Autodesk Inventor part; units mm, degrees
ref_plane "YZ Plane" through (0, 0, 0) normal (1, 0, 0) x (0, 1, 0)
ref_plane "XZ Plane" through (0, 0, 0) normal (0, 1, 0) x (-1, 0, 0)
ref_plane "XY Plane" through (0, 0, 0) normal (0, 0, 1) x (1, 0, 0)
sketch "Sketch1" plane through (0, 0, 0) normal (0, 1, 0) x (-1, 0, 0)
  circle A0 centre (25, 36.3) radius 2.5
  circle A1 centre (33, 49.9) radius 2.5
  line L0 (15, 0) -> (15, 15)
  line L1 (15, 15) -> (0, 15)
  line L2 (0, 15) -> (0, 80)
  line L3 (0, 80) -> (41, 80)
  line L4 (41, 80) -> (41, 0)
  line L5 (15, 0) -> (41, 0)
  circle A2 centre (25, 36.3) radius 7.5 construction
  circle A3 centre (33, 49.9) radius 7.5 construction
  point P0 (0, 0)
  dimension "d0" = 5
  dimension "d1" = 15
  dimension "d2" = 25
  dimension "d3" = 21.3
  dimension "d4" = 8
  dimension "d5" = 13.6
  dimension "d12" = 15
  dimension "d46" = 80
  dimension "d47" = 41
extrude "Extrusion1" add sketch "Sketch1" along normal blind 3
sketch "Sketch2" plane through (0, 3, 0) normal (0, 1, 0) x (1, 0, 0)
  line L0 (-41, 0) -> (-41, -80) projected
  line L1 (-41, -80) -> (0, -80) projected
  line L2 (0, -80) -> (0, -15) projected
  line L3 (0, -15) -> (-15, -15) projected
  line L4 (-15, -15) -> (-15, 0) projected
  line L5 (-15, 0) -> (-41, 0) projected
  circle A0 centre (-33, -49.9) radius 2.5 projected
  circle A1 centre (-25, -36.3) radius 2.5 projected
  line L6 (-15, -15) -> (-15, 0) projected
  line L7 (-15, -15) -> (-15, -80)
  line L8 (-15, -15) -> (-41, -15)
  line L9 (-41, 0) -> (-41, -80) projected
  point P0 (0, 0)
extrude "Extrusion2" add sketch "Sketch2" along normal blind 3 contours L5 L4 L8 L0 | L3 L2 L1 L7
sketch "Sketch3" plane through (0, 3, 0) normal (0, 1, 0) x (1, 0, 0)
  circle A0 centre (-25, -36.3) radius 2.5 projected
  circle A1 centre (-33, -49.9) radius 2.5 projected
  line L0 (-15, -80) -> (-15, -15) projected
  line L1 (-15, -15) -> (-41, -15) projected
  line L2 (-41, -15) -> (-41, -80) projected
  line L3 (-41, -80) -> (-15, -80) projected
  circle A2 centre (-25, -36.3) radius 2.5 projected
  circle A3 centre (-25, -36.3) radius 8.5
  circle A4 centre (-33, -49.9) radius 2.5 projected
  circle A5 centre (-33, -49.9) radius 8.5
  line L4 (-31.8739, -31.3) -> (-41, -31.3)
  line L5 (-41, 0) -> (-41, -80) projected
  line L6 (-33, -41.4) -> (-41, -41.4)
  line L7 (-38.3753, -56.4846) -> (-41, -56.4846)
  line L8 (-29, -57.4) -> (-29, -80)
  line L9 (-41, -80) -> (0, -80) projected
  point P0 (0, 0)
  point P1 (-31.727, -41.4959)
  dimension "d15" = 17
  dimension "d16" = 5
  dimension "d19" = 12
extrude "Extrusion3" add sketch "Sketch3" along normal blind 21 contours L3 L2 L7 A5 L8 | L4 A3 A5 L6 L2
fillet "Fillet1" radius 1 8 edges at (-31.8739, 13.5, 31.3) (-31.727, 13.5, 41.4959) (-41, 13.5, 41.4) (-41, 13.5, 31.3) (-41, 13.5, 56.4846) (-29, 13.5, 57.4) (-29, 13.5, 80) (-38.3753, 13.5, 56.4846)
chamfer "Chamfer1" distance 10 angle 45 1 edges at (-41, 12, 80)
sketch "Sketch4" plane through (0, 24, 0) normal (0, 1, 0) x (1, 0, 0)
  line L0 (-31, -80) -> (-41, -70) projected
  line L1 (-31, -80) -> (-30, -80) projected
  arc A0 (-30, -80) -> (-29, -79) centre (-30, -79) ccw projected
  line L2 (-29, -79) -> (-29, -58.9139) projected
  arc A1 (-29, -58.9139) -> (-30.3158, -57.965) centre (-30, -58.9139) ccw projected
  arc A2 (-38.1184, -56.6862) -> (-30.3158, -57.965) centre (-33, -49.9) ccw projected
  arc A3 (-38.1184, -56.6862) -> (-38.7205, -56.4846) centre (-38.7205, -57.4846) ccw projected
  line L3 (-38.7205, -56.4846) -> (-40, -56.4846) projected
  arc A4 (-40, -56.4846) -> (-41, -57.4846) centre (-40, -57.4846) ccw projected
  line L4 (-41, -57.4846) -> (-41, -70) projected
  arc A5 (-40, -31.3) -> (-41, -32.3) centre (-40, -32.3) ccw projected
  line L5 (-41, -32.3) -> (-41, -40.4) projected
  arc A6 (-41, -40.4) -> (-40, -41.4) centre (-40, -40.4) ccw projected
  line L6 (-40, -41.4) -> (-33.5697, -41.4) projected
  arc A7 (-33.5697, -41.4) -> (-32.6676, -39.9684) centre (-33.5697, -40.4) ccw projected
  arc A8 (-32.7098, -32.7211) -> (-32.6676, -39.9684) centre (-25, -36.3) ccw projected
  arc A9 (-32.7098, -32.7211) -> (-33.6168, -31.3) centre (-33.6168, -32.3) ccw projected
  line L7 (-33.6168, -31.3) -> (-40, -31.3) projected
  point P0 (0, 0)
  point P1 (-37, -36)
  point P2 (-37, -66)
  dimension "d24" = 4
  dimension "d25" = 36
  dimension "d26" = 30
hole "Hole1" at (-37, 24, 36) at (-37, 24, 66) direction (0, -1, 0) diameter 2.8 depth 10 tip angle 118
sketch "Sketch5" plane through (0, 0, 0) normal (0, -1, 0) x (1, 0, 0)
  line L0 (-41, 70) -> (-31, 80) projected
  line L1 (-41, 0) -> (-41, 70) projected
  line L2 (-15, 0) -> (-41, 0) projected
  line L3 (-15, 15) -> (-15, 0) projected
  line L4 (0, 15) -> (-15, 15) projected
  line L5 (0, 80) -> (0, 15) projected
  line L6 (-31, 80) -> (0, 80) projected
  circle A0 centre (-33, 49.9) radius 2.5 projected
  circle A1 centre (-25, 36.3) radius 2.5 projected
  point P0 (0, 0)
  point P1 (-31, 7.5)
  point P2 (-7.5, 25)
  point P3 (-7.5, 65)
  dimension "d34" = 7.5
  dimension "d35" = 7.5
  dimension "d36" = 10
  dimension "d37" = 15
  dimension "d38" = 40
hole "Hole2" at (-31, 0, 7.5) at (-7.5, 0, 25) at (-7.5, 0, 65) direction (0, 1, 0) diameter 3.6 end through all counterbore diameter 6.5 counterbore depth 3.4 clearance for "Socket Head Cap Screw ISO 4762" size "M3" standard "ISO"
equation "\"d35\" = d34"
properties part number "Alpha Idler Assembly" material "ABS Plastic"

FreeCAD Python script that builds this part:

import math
import FreeCAD as App
import Part
import Sketcher

V = App.Vector


def edges_at(feature, points):
    """Names of the edges that pass closest to the given points."""
    edges = feature.Shape.Edges
    near = lambda p: min(range(len(edges)), key=lambda i: edges[i].distToShape(Part.Vertex(*p))[0])
    return sorted({f"Edge{near(p) + 1}" for p in points})


def add_polygon(sketch, points):
    """Adds a closed chain of lines whose ends are joined by coincident constraints."""
    first, n = sketch.GeometryCount, len(points)
    for a, b in zip(points, points[1:] + points[:1]):
        sketch.addGeometry(Part.LineSegment(App.Vector(*a, 0), App.Vector(*b, 0)), False)
    for i in range(n):
        sketch.addConstraint(Sketcher.Constraint("Coincident", first + i, 2, first + (i + 1) % n, 1))

doc = App.newDocument("Part")
params = doc.addObject("Spreadsheet::Sheet", "Params")
for row, (alias, value) in enumerate([
    ("sketch1_diameter", "5 mm"),
    ("sketch1_width", "41 mm"),
    ("sketch1_width2", "15 mm"),
    ("sketch1_height", "80 mm"),
    ("pad1_length", "3 mm"),
    ("sketch2_width", "26 mm"),
    ("sketch2_width2", "15 mm"),
    ("sketch2_height", "65 mm"),
    ("pad2_length", "3 mm"),
    ("sketch3_radius", "8.5 mm"),
    ("sketch3_width", "12 mm"),
    ("sketch3_width2", "8 mm"),
    ("sketch3_height", "22.6 mm"),
    ("sketch3_height2", "10.1 mm"),
    ("pad3_length", "21 mm"),
    ("fillet_radius", "1 mm"),
    ("chamfer_size", "10 mm"),
    ("sketch4_diameter", "2.8 mm"),
    ("hole_diameter", "2.8 mm"),
    ("hole_depth", "10 mm"),
    ("sketch5_diameter", "3.6 mm"),
    ("hole2_diameter", "3.6 mm"),
    ("hole2_cbore_diameter", "6.5 mm"),
    ("hole2_cbore_depth", "3.4 mm"),
], start=1):
    params.set(f"A{row}", alias)
    params.set(f"B{row}", "=" + value)
    params.setAlias(f"B{row}", alias)

body = doc.addObject("PartDesign::Body", "Body")

# Sketch on XZ plane
sketch1 = doc.addObject("Sketcher::SketchObject", "Sketch")
body.addObject(sketch1)
sketch1.AttachmentSupport = (doc.XZ_Plane, [""])
sketch1.MapMode = "FlatFace"
add_polygon(sketch1, [(-15, 15), (-15, 0), (-41, 0), (-41, 80), (0, 80), (0, 15)])  # lines 0-5
sketch1.addGeometry(Part.Circle(V(-25, 36.3, 0), V(0, 0, 1), 2.5), False)  # 6
sketch1.addGeometry(Part.Circle(V(-33, 49.9, 0), V(0, 0, 1), 2.5), False)  # 7
sketch1.addConstraint(Sketcher.Constraint("Vertical", 0))
sketch1.addConstraint(Sketcher.Constraint("Horizontal", 1))
sketch1.addConstraint(Sketcher.Constraint("Vertical", 2))
sketch1.addConstraint(Sketcher.Constraint("Horizontal", 3))
sketch1.addConstraint(Sketcher.Constraint("Vertical", 4))
sketch1.addConstraint(Sketcher.Constraint("Horizontal", 5))
sketch1.addConstraint(Sketcher.Constraint("Equal", 6, 7))
sketch1.addConstraint(Sketcher.Constraint("PointOnObject", 0, 2, -1))
sketch1.addConstraint(Sketcher.Constraint("PointOnObject", 3, 2, -2))
sketch1.addConstraint(Sketcher.Constraint("Equal", 5, 0))
sketch1.addConstraint(Sketcher.Constraint("Diameter", 6, 5.0))
sketch1.addConstraint(Sketcher.Constraint("DistanceX", 3, 1, 3, 2, 41.0))
sketch1.addConstraint(Sketcher.Constraint("DistanceX", 5, 2, 5, 1, 15.0))
sketch1.addConstraint(Sketcher.Constraint("DistanceY", 2, 1, 2, 2, 80.0))
sketch1.addConstraint(Sketcher.Constraint("DistanceX", 6, 3, -1, 1, 25.0))
sketch1.addConstraint(Sketcher.Constraint("DistanceX", 7, 3, 6, 3, 8.0))
sketch1.addConstraint(Sketcher.Constraint("DistanceY", 6, 3, 7, 3, 13.6))
sketch1.addConstraint(Sketcher.Constraint("DistanceY", 4, 2, 6, 3, 21.3))
sketch1.setExpression("Constraints[16]", "Params.sketch1_diameter")
sketch1.setExpression("Constraints[17]", "Params.sketch1_width")
sketch1.setExpression("Constraints[18]", "Params.sketch1_width2")
sketch1.setExpression("Constraints[19]", "Params.sketch1_height")
pad1 = doc.addObject("PartDesign::Pad", "Pad")
body.addObject(pad1)
pad1.Profile = sketch1
pad1.setExpression("Length", "Params.pad1_length")
pad1.Reversed = True

# Sketch on XZ plane
sketch2 = doc.addObject("Sketcher::SketchObject", "Sketch001")
body.addObject(sketch2)
sketch2.AttachmentSupport = (doc.XZ_Plane, [""])
sketch2.MapMode = "FlatFace"
sketch2.AttachmentOffset = App.Placement(V(0, 0, -3), App.Rotation())
add_polygon(sketch2, [(-15, 0), (-41, 0), (-41, 15), (-15, 15)])  # lines 0-3
add_polygon(sketch2, [(0, 15), (-15, 15), (-15, 80), (0, 80)])  # lines 4-7
sketch2.addConstraint(Sketcher.Constraint("Horizontal", 0))
sketch2.addConstraint(Sketcher.Constraint("Vertical", 1))
sketch2.addConstraint(Sketcher.Constraint("Horizontal", 2))
sketch2.addConstraint(Sketcher.Constraint("Vertical", 3))
sketch2.addConstraint(Sketcher.Constraint("Horizontal", 4))
sketch2.addConstraint(Sketcher.Constraint("Vertical", 5))
sketch2.addConstraint(Sketcher.Constraint("Horizontal", 6))
sketch2.addConstraint(Sketcher.Constraint("Vertical", 7))
sketch2.addConstraint(Sketcher.Constraint("Coincident", 4, 2, 2, 2))
sketch2.addConstraint(Sketcher.Constraint("PointOnObject", 0, 2, -1))
sketch2.addConstraint(Sketcher.Constraint("PointOnObject", 6, 2, -2))
sketch2.addConstraint(Sketcher.Constraint("Equal", 6, 1))
sketch2.addConstraint(Sketcher.Constraint("DistanceX", 0, 2, 0, 1, 26.0))
sketch2.addConstraint(Sketcher.Constraint("DistanceX", 4, 2, 4, 1, 15.0))
sketch2.addConstraint(Sketcher.Constraint("DistanceY", 5, 1, 5, 2, 65.0))
sketch2.setExpression("Constraints[20]", "Params.sketch2_width")
sketch2.setExpression("Constraints[21]", "Params.sketch2_width2")
sketch2.setExpression("Constraints[22]", "Params.sketch2_height")
pad2 = doc.addObject("PartDesign::Pad", "Pad001")
body.addObject(pad2)
pad2.Profile = sketch2
pad2.setExpression("Length", "Params.pad2_length")
pad2.Reversed = True

# Sketch on XZ plane
sketch3 = doc.addObject("Sketcher::SketchObject", "Sketch002")
body.addObject(sketch3)
sketch3.AttachmentSupport = (doc.XZ_Plane, [""])
sketch3.MapMode = "FlatFace"
sketch3.AttachmentOffset = App.Placement(V(0, 0, -3), App.Rotation())
sketch3.addGeometry(Part.LineSegment(V(-41, 80, 0), V(-29, 80, 0)), False)
sketch3.addGeometry(Part.LineSegment(V(-29, 80, 0), V(-29, 57.4, 0)), False)
sketch3.addGeometry(Part.ArcOfCircle(Part.Circle(V(-33, 49.9, 0), V(0, 0, 1), 8.5), math.radians(61.927513), math.radians(129.226282)), False)
sketch3.addGeometry(Part.LineSegment(V(-38.3753, 56.4846, 0), V(-41, 56.4846, 0)), False)
sketch3.addGeometry(Part.LineSegment(V(-41, 56.4846, 0), V(-41, 80, 0)), False)
sketch3.addGeometry(Part.LineSegment(V(-31.8739, 31.3, 0), V(-41, 31.3, 0)), False)
sketch3.addGeometry(Part.LineSegment(V(-41, 31.3, 0), V(-41, 41.4, 0)), False)
sketch3.addGeometry(Part.LineSegment(V(-41, 41.4, 0), V(-33, 41.4, 0)), False)
sketch3.addGeometry(Part.ArcOfCircle(Part.Circle(V(-33, 49.9, 0), V(0, 0, 1), 8.5), math.radians(-90), math.radians(-81.386967)), False)
sketch3.addGeometry(Part.ArcOfCircle(Part.Circle(V(-25, 36.3, 0), V(0, 0, 1), 8.5), math.radians(142.318056), math.radians(216.031735)), False)
sketch3.addConstraint(Sketcher.Constraint("Coincident", 0, 2, 1, 1))
sketch3.addConstraint(Sketcher.Constraint("Coincident", 1, 2, 2, 1))
sketch3.addConstraint(Sketcher.Constraint("Coincident", 2, 2, 3, 1))
sketch3.addConstraint(Sketcher.Constraint("Coincident", 3, 2, 4, 1))
sketch3.addConstraint(Sketcher.Constraint("Coincident", 4, 2, 0, 1))
sketch3.addConstraint(Sketcher.Constraint("Coincident", 5, 2, 6, 1))
sketch3.addConstraint(Sketcher.Constraint("Coincident", 6, 2, 7, 1))
sketch3.addConstraint(Sketcher.Constraint("Tangent", 7, 2, 8, 1))
sketch3.addConstraint(Sketcher.Constraint("Coincident", 8, 2, 9, 1))
sketch3.addConstraint(Sketcher.Constraint("Coincident", 9, 2, 5, 1))
sketch3.addConstraint(Sketcher.Constraint("Horizontal", 0))
sketch3.addConstraint(Sketcher.Constraint("Vertical", 1))
sketch3.addConstraint(Sketcher.Constraint("Horizontal", 3))
sketch3.addConstraint(Sketcher.Constraint("Vertical", 4))
sketch3.addConstraint(Sketcher.Constraint("Horizontal", 5))
sketch3.addConstraint(Sketcher.Constraint("Vertical", 6))
sketch3.addConstraint(Sketcher.Constraint("Horizontal", 7))
sketch3.addConstraint(Sketcher.Constraint("Coincident", 8, 3, 2, 3))
sketch3.addConstraint(Sketcher.Constraint("Equal", 2, 8))
sketch3.addConstraint(Sketcher.Constraint("Equal", 8, 9))
sketch3.addConstraint(Sketcher.Constraint("Vertical", 4, 2, 5, 2))
sketch3.addConstraint(Sketcher.Constraint("Radius", 2, 8.5))
sketch3.addConstraint(Sketcher.Constraint("DistanceX", 0, 1, 0, 2, 12.0))
sketch3.addConstraint(Sketcher.Constraint("DistanceY", 5, 2, 9, 3, 5.0))
sketch3.addConstraint(Sketcher.Constraint("DistanceX", 7, 1, 7, 2, 8.0))
sketch3.addConstraint(Sketcher.Constraint("DistanceY", 1, 2, 1, 1, 22.6))
sketch3.addConstraint(Sketcher.Constraint("DistanceY", 6, 1, 6, 2, 10.1))
sketch3.addConstraint(Sketcher.Constraint("DistanceX", 2, 3, -1, 1, 33.0))
sketch3.addConstraint(Sketcher.Constraint("DistanceX", 9, 3, -1, 1, 25.0))
sketch3.addConstraint(Sketcher.Constraint("DistanceY", -1, 1, 0, 2, 80.0))
sketch3.addConstraint(Sketcher.Constraint("DistanceX", 3, 2, 3, 1, 2.6247))
sketch3.setExpression("Constraints[21]", "Params.sketch3_radius")
sketch3.setExpression("Constraints[22]", "Params.sketch3_width")
sketch3.setExpression("Constraints[24]", "Params.sketch3_width2")
sketch3.setExpression("Constraints[25]", "Params.sketch3_height")
sketch3.setExpression("Constraints[26]", "Params.sketch3_height2")
pad3 = doc.addObject("PartDesign::Pad", "Pad002")
body.addObject(pad3)
pad3.Profile = sketch3
pad3.setExpression("Length", "Params.pad3_length")
pad3.Reversed = True
doc.recompute()

fillet = doc.addObject("PartDesign::Fillet", "Fillet")
body.addObject(fillet)
fillet.Base = (pad3, edges_at(pad3, [
    (-31.874, 13.5, 31.3),
    (-31.727, 13.5, 41.496),
    (-41, 13.5, 41.4),
    (-41, 13.5, 31.3),
    (-41, 13.5, 56.485),
    (-29, 13.5, 57.4),
    (-29, 13.5, 80),
    (-38.375, 13.5, 56.485),
]))
fillet.setExpression("Radius", "Params.fillet_radius")
doc.recompute()

chamfer = doc.addObject("PartDesign::Chamfer", "Chamfer")
body.addObject(chamfer)
chamfer.Base = (fillet, edges_at(fillet, [(-41, 12, 80)]))
chamfer.setExpression("Size", "Params.chamfer_size")

# Sketch on XZ plane
sketch4 = doc.addObject("Sketcher::SketchObject", "Sketch003")
body.addObject(sketch4)
sketch4.AttachmentSupport = (doc.XZ_Plane, [""])
sketch4.MapMode = "FlatFace"
sketch4.AttachmentOffset = App.Placement(V(0, 0, -24), App.Rotation())
sketch4.addGeometry(Part.Circle(V(-37, 36, 0), V(0, 0, 1), 1.4), False)
sketch4.addGeometry(Part.Circle(V(-37, 66, 0), V(0, 0, 1), 1.4), False)
sketch4.addConstraint(Sketcher.Constraint("Equal", 0, 1))
sketch4.addConstraint(Sketcher.Constraint("Vertical", 0, 3, 1, 3))
sketch4.addConstraint(Sketcher.Constraint("Diameter", 0, 2.8))
sketch4.addConstraint(Sketcher.Constraint("DistanceX", 0, 3, -1, 1, 37.0))
sketch4.addConstraint(Sketcher.Constraint("DistanceY", -1, 1, 0, 3, 36.0))
sketch4.addConstraint(Sketcher.Constraint("DistanceY", -1, 1, 1, 3, 66.0))
sketch4.setExpression("Constraints[2]", "Params.sketch4_diameter")
doc.recompute()
hole = doc.addObject("PartDesign::Hole", "Hole")
body.addObject(hole)
hole.Profile = sketch4
hole.ThreadType = "None"
hole.setExpression("Diameter", "Params.hole_diameter")
hole.DepthType = "Dimension"
hole.setExpression("Depth", "Params.hole_depth")
hole.DrillPoint = "Angled"
hole.DrillPointAngle = 118
hole.Reversed = True

# Sketch on XZ plane
sketch5 = doc.addObject("Sketcher::SketchObject", "Sketch004")
body.addObject(sketch5)
sketch5.AttachmentSupport = (doc.XZ_Plane, [""])
sketch5.MapMode = "FlatFace"
sketch5.addGeometry(Part.Circle(V(-31, 7.5, 0), V(0, 0, 1), 1.8), False)
sketch5.addGeometry(Part.Circle(V(-7.5, 25, 0), V(0, 0, 1), 1.8), False)
sketch5.addGeometry(Part.Circle(V(-7.5, 65, 0), V(0, 0, 1), 1.8), False)
sketch5.addConstraint(Sketcher.Constraint("Equal", 0, 1))
sketch5.addConstraint(Sketcher.Constraint("Equal", 1, 2))
sketch5.addConstraint(Sketcher.Constraint("Vertical", 1, 3, 2, 3))
sketch5.addConstraint(Sketcher.Constraint("Diameter", 0, 3.6))
sketch5.addConstraint(Sketcher.Constraint("DistanceX", 0, 3, -1, 1, 31.0))
sketch5.addConstraint(Sketcher.Constraint("DistanceY", -1, 1, 1, 3, 25.0))
sketch5.addConstraint(Sketcher.Constraint("DistanceY", -1, 1, 2, 3, 65.0))
sketch5.addConstraint(Sketcher.Constraint("DistanceY", -1, 1, 0, 3, 7.5))
sketch5.addConstraint(Sketcher.Constraint("DistanceX", 1, 3, -1, 1, 7.5))
sketch5.setExpression("Constraints[3]", "Params.sketch5_diameter")
doc.recompute()
hole2 = doc.addObject("PartDesign::Hole", "Hole001")
body.addObject(hole2)
hole2.Profile = sketch5
hole2.ThreadType = "None"
hole2.setExpression("Diameter", "Params.hole2_diameter")
hole2.DepthType = "ThroughAll"
hole2.HoleCutType = "Counterbore"
hole2.setExpression("HoleCutDiameter", "Params.hole2_cbore_diameter")
hole2.setExpression("HoleCutDepth", "Params.hole2_cbore_depth")

doc.recompute()
